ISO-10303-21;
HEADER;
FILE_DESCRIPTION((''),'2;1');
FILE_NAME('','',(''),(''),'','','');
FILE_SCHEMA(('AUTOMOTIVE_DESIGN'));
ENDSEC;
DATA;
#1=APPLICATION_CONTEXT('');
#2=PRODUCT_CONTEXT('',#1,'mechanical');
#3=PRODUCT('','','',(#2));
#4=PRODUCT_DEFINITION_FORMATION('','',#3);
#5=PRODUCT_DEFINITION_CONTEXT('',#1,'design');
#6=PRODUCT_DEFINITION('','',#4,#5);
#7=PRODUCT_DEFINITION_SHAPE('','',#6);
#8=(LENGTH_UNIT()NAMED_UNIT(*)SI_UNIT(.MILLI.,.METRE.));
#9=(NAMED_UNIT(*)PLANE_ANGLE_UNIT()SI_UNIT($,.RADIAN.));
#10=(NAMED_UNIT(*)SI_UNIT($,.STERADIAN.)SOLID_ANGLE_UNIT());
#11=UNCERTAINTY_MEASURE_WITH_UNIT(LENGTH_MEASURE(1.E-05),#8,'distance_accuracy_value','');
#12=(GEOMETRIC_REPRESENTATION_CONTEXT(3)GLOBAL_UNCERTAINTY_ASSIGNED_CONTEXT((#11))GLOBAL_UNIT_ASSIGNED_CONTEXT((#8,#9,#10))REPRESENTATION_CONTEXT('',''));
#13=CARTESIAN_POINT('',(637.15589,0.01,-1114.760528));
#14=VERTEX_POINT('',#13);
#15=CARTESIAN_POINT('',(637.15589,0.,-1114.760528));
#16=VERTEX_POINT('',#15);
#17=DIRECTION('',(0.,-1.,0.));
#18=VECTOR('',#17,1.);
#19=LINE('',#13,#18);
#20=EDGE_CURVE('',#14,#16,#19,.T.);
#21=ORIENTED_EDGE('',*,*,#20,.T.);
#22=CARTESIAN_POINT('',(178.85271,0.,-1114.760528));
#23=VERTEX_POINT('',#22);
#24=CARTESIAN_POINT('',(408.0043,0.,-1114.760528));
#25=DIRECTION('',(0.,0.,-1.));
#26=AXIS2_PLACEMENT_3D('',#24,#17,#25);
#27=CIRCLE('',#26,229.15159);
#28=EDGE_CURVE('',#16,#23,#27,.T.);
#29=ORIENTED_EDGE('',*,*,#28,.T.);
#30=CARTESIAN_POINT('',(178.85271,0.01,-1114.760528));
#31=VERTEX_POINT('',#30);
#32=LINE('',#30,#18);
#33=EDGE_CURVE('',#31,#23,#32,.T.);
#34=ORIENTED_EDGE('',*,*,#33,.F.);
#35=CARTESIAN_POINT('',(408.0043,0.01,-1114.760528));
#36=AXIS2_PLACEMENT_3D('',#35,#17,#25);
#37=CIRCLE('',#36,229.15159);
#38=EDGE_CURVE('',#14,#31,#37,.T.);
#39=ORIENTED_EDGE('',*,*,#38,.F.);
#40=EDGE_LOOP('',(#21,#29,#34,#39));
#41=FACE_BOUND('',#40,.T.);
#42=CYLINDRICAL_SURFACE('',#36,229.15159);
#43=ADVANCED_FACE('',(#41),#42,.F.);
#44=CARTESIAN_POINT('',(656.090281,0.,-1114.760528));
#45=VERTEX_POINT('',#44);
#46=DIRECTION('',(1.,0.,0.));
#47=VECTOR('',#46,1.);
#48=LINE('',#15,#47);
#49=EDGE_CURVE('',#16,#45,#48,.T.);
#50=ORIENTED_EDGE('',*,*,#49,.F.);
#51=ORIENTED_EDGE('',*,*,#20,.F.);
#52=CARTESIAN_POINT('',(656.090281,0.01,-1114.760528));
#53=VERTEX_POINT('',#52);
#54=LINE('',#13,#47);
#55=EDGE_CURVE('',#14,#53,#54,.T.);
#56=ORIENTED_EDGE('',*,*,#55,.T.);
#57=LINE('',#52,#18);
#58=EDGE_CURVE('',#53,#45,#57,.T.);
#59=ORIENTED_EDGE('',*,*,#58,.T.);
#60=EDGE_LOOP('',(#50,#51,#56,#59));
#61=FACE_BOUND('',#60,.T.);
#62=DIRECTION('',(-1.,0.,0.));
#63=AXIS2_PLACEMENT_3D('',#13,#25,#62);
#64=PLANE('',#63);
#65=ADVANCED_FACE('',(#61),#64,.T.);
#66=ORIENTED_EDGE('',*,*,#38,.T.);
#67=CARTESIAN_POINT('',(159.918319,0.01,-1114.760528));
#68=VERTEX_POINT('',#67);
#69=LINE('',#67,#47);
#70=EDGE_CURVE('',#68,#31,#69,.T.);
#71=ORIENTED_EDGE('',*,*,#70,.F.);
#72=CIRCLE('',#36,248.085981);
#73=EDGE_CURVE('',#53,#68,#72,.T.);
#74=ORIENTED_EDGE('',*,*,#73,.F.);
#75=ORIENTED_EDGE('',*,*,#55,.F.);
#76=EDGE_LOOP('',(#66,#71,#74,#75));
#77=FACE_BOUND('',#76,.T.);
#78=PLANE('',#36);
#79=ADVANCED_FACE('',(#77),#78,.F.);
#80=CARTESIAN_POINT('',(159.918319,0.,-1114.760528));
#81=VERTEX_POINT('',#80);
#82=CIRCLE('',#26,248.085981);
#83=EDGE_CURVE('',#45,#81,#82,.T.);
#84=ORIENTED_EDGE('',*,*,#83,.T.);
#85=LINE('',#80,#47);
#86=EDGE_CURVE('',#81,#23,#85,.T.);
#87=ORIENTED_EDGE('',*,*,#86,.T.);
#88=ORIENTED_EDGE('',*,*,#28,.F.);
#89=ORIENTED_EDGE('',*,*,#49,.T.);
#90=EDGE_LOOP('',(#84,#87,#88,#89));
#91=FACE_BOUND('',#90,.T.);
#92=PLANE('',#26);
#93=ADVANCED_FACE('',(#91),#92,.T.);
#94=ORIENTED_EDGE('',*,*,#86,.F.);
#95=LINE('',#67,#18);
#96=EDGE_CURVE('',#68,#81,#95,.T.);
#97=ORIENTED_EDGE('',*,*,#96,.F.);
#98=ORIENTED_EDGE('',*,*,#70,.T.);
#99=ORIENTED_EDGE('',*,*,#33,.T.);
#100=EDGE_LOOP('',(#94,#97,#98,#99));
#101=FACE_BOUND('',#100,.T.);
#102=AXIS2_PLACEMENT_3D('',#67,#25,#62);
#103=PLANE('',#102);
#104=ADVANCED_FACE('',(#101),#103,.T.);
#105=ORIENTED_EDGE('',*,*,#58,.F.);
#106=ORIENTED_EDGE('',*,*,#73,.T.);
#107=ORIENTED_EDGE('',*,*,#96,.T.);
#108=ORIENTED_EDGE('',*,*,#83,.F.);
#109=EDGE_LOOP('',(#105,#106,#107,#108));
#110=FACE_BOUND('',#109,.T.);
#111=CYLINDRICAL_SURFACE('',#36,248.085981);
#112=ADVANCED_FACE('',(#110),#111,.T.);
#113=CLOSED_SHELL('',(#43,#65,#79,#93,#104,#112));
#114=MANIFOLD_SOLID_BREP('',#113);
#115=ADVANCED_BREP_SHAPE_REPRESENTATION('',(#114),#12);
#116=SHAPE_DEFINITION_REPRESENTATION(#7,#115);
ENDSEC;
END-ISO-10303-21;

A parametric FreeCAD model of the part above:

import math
import FreeCAD as App
import Part
import Sketcher
from FreeCAD import Vector
Q = App.Units.Quantity

doc = App.newDocument("Part")
body = doc.addObject("PartDesign::Body", "Body")

sketch1 = body.newObject("Sketcher::SketchObject", "Sketch")
sketch1.AttachmentSupport = (doc.getObject("XZ_Plane"), [""])
sketch1.MapMode = "FlatFace"
sketch1.addGeometry(Part.LineSegment(Vector(656.090281, -1114.760528, 0), Vector(637.15589, -1114.760528, 0)), False)
sketch1.addGeometry(Part.ArcOfCircle(Part.Circle(Vector(408.0043, -1114.760528, 0), Vector(0, 0, 1), 229.15159), math.radians(0), math.radians(180)), False)
sketch1.addGeometry(Part.LineSegment(Vector(178.85271, -1114.760528, 0), Vector(159.918319, -1114.760528, 0)), False)
sketch1.addGeometry(Part.ArcOfCircle(Part.Circle(Vector(408.0043, -1114.760528, 0), Vector(0, 0, 1), 248.085981), math.radians(0), math.radians(180)), False)
sketch1.addConstraint(Sketcher.Constraint("Coincident", 0, 2, 1, 1))
sketch1.addConstraint(Sketcher.Constraint("Coincident", 1, 2, 2, 1))
sketch1.addConstraint(Sketcher.Constraint("Coincident", 2, 2, 3, 2))
sketch1.addConstraint(Sketcher.Constraint("Coincident", 3, 1, 0, 1))
sketch1.addConstraint(Sketcher.Constraint("Horizontal", 0))
sketch1.addConstraint(Sketcher.Constraint("Horizontal", 2))
sketch1.addConstraint(Sketcher.Constraint("Coincident", 3, 3, 1, 3))
sketch1.addConstraint(Sketcher.Constraint("Horizontal", 3, 3, 0, 2))
sketch1.addConstraint(Sketcher.Constraint("Horizontal", 0, 2, 1, 2))
sketch1.addConstraint(Sketcher.Constraint("Radius", 1, Q("229.15159 mm")))
sketch1.addConstraint(Sketcher.Constraint("Radius", 3, Q("248.085981 mm")))
sketch1.addConstraint(Sketcher.Constraint("DistanceX", -1, 1, 1, 3, Q("408.0043 mm")))
sketch1.addConstraint(Sketcher.Constraint("DistanceY", 1, 3, -1, 1, Q("1114.760528 mm")))
pad1 = body.newObject("PartDesign::Pad", "Pad")
pad1.Profile = sketch1
pad1.Length = 0.01
pad1.Reversed = True

doc.recompute()
